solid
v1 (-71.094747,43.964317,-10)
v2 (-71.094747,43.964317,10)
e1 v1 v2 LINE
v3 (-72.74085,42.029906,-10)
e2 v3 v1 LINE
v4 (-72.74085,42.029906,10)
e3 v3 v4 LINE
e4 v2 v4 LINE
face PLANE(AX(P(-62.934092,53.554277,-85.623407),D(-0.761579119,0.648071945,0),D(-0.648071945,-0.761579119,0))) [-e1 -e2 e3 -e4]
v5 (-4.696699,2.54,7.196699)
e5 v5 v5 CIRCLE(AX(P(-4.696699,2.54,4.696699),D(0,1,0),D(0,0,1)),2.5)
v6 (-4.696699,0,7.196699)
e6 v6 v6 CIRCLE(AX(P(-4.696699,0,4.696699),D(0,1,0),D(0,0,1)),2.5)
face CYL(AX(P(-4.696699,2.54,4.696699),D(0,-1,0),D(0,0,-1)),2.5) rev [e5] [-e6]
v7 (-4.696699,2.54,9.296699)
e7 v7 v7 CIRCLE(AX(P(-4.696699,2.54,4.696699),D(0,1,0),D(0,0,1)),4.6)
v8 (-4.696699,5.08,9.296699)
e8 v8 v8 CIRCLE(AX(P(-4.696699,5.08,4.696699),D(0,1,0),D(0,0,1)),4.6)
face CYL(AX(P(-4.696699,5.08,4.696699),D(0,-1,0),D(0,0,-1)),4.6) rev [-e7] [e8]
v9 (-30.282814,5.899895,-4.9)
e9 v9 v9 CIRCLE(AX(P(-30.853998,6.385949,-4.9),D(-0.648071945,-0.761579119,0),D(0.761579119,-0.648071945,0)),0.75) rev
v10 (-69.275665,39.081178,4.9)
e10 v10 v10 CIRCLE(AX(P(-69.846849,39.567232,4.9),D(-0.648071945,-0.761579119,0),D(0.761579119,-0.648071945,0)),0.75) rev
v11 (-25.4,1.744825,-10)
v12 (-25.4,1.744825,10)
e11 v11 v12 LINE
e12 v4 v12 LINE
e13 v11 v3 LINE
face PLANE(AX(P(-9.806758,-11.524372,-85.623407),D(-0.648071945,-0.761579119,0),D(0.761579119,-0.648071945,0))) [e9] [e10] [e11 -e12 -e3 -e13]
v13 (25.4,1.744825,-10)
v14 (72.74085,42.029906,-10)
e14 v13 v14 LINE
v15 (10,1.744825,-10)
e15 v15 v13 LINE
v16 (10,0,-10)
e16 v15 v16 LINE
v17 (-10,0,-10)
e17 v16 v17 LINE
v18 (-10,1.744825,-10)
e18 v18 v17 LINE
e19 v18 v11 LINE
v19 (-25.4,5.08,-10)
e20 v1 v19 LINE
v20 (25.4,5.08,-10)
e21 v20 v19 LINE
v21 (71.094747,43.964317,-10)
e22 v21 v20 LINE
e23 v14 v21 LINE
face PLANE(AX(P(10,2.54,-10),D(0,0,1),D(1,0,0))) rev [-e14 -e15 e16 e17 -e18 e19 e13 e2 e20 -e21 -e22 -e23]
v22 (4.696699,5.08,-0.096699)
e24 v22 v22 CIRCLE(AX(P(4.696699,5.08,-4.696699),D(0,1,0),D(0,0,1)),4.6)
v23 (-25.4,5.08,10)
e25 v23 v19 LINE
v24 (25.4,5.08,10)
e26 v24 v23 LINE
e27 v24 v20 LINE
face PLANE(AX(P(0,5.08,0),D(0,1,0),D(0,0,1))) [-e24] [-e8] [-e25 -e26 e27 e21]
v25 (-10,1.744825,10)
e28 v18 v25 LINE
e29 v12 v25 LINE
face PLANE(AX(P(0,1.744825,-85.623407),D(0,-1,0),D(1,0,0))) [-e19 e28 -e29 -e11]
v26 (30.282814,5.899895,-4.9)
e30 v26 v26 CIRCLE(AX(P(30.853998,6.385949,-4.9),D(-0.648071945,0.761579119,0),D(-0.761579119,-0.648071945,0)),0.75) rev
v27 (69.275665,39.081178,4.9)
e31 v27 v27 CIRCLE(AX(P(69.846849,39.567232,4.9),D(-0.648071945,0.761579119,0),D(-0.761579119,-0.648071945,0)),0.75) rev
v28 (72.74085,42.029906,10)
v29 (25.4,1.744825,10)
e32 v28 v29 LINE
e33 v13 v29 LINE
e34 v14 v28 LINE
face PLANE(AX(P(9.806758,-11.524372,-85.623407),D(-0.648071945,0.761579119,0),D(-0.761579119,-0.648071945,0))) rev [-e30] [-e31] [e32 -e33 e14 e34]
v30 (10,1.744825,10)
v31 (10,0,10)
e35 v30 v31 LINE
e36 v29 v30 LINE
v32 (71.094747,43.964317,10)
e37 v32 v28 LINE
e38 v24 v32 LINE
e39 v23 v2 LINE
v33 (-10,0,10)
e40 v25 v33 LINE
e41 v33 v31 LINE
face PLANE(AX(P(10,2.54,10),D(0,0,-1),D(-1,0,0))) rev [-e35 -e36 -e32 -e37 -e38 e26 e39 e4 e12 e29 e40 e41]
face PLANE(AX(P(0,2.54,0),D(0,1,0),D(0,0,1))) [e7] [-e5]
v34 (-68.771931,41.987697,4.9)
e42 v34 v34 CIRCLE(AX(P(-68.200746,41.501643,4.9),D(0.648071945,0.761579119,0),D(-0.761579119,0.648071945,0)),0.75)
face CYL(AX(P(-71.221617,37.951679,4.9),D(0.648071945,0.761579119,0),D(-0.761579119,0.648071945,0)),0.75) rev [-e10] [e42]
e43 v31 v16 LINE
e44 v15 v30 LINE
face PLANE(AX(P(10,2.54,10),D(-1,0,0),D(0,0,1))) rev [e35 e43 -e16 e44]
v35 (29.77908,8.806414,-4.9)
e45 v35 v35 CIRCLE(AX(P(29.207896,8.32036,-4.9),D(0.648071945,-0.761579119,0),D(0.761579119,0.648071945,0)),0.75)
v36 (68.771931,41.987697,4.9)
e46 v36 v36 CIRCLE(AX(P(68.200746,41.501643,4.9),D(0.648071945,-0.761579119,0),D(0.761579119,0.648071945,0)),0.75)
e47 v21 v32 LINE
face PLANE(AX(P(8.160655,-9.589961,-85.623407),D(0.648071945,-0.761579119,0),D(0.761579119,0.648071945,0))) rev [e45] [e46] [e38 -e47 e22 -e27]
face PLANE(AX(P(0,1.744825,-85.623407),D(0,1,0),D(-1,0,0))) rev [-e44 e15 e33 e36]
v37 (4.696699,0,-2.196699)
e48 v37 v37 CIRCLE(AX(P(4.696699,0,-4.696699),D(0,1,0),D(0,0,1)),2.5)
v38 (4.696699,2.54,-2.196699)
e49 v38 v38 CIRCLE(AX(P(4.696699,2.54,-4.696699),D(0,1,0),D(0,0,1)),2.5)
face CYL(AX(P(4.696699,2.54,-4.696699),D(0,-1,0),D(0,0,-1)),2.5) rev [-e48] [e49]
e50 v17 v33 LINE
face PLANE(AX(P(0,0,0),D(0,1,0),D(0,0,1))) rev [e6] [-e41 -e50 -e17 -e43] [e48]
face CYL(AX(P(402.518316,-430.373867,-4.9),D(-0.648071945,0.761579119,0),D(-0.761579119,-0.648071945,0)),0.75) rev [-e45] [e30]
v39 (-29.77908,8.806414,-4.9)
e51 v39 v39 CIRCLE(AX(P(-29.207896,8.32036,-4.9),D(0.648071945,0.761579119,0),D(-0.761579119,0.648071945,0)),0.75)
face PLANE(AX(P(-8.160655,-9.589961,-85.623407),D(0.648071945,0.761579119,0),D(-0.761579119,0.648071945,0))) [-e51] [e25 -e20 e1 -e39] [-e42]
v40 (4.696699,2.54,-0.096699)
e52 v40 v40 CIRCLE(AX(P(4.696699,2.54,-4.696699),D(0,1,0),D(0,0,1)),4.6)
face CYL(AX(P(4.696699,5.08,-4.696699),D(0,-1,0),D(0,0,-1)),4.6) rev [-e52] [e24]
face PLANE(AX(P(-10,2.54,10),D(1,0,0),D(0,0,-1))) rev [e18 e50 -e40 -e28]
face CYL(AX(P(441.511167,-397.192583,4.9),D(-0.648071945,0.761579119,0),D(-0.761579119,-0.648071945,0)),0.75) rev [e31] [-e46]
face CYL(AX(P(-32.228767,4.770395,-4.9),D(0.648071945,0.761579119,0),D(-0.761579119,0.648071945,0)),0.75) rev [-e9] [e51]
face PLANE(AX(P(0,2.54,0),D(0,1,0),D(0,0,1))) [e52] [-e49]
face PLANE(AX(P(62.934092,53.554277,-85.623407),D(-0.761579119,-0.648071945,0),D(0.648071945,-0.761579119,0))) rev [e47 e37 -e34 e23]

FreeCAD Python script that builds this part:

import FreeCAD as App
import Part
import Sketcher
from FreeCAD import Vector

doc = App.newDocument("Part")
body = doc.addObject("PartDesign::Body", "Body")

# Sketch on XZ plane
sketch1 = body.newObject("Sketcher::SketchObject", "Sketch")
sketch1.AttachmentSupport = (doc.getObject("XZ_Plane"), [""])
sketch1.MapMode = "FlatFace"
sketch1.addGeometry(Part.LineSegment(Vector(-10, -10, 0), Vector(-10, 10, 0)), False)
sketch1.addGeometry(Part.LineSegment(Vector(-10, 10, 0), Vector(10, 10, 0)), False)
sketch1.addGeometry(Part.LineSegment(Vector(10, 10, 0), Vector(10, -10, 0)), False)
sketch1.addGeometry(Part.LineSegment(Vector(10, -10, 0), Vector(-10, -10, 0)), False)
sketch1.addGeometry(Part.Circle(Vector(-4.7, 4.7, 0), Vector(0, 0, 1), 2.5), False)
sketch1.addGeometry(Part.Circle(Vector(4.7, -4.7, 0), Vector(0, 0, 1), 2.5), False)
sketch1.addConstraint(Sketcher.Constraint("Coincident", 0, 2, 1, 1))
sketch1.addConstraint(Sketcher.Constraint("Coincident", 1, 2, 2, 1))
sketch1.addConstraint(Sketcher.Constraint("Coincident", 2, 2, 3, 1))
sketch1.addConstraint(Sketcher.Constraint("Coincident", 3, 2, 0, 1))
sketch1.addConstraint(Sketcher.Constraint("Vertical", 0))
sketch1.addConstraint(Sketcher.Constraint("Horizontal", 1))
sketch1.addConstraint(Sketcher.Constraint("Vertical", 2))
sketch1.addConstraint(Sketcher.Constraint("Horizontal", 3))
sketch1.addConstraint(Sketcher.Constraint("Equal", 4, 5))
sketch1.addConstraint(Sketcher.Constraint("Symmetric", 4, 3, 5, 3, -1, 1))
sketch1.addConstraint(Sketcher.Constraint("Symmetric", 0, 2, 2, 2, -1, 1))
sketch1.addConstraint(Sketcher.Constraint("Equal", 3, 0))
sketch1.addConstraint(Sketcher.Constraint("Diameter", 4, 5.0))
sketch1.addConstraint(Sketcher.Constraint("DistanceX", 1, 1, 1, 2, 20.0))
sketch1.addConstraint(Sketcher.Constraint("DistanceX", 4, 3, -1, 1, 4.696699))
sketch1.addConstraint(Sketcher.Constraint("DistanceY", -1, 1, 4, 3, 4.696699))
pad1 = body.newObject("PartDesign::Pad", "Pad")
pad1.Profile = sketch1
pad1.Length = 2.54
pad1.Reversed = True

# Sketch on XZ plane
sketch2 = body.newObject("Sketcher::SketchObject", "Sketch001")
sketch2.AttachmentSupport = (doc.getObject("XZ_Plane"), [""])
sketch2.MapMode = "FlatFace"
sketch2.AttachmentOffset = App.Placement(Vector(0, 0, -2.54), App.Rotation())
sketch2.addGeometry(Part.LineSegment(Vector(-25.4, -10, 0), Vector(-25.4, 10, 0)), False)
sketch2.addGeometry(Part.LineSegment(Vector(-25.4, 10, 0), Vector(25.4, 10, 0)), False)
sketch2.addGeometry(Part.LineSegment(Vector(25.4, 10, 0), Vector(25.4, -10, 0)), False)
sketch2.addGeometry(Part.LineSegment(Vector(25.4, -10, 0), Vector(-25.4, -10, 0)), False)
sketch2.addGeometry(Part.Circle(Vector(4.7, -4.7, 0), Vector(0, 0, 1), 4.6), False)
sketch2.addGeometry(Part.Circle(Vector(-4.7, 4.7, 0), Vector(0, 0, 1), 4.6), False)
sketch2.addConstraint(Sketcher.Constraint("Coincident", 0, 2, 1, 1))
sketch2.addConstraint(Sketcher.Constraint("Coincident", 1, 2, 2, 1))
sketch2.addConstraint(Sketcher.Constraint("Coincident", 2, 2, 3, 1))
sketch2.addConstraint(Sketcher.Constraint("Coincident", 3, 2, 0, 1))
sketch2.addConstraint(Sketcher.Constraint("Vertical", 0))
sketch2.addConstraint(Sketcher.Constraint("Horizontal", 1))
sketch2.addConstraint(Sketcher.Constraint("Vertical", 2))
sketch2.addConstraint(Sketcher.Constraint("Horizontal", 3))
sketch2.addConstraint(Sketcher.Constraint("Equal", 4, 5))
sketch2.addConstraint(Sketcher.Constraint("Symmetric", 4, 3, 5, 3, -1, 1))
sketch2.addConstraint(Sketcher.Constraint("Symmetric", 0, 2, 2, 2, -1, 1))
sketch2.addConstraint(Sketcher.Constraint("Diameter", 4, 9.2))
sketch2.addConstraint(Sketcher.Constraint("DistanceY", 0, 1, 0, 2, 20.0))
sketch2.addConstraint(Sketcher.Constraint("DistanceX", 1, 1, 1, 2, 50.8))
sketch2.addConstraint(Sketcher.Constraint("DistanceX", -1, 1, 4, 3, 4.696699))
sketch2.addConstraint(Sketcher.Constraint("DistanceY", 4, 3, -1, 1, 4.696699))
pad2 = body.newObject("PartDesign::Pad", "Pad001")
pad2.Profile = sketch2
pad2.Length = 2.54
pad2.Reversed = True

# Sketch on XY plane
sketch3 = body.newObject("Sketcher::SketchObject", "Sketch002")
sketch3.AttachmentSupport = (doc.getObject("XY_Plane"), [""])
sketch3.MapMode = "FlatFace"
sketch3.AttachmentOffset = App.Placement(Vector(0, 0, 10), App.Rotation())
sketch3.addGeometry(Part.LineSegment(Vector(-25.4, 2.5, 0), Vector(-25.4, 5.1, 0)), False)
sketch3.addGeometry(Part.LineSegment(Vector(-25.4, 5.1, 0), Vector(-71.1, 44, 0)), False)
sketch3.addGeometry(Part.LineSegment(Vector(-71.1, 44, 0), Vector(-72.7, 42, 0)), False)
sketch3.addGeometry(Part.LineSegment(Vector(-72.7, 42, 0), Vector(-25.4, 1.7, 0)), False)
sketch3.addGeometry(Part.LineSegment(Vector(-25.4, 1.7, 0), Vector(-10, 1.7, 0)), False)
sketch3.addGeometry(Part.LineSegment(Vector(-10, 1.7, 0), Vector(-10, 2.5, 0)), False)
sketch3.addGeometry(Part.LineSegment(Vector(-10, 2.5, 0), Vector(-25.4, 2.5, 0)), False)
sketch3.addGeometry(Part.LineSegment(Vector(71.1, 44, 0), Vector(25.4, 5.1, 0)), False)
sketch3.addGeometry(Part.LineSegment(Vector(25.4, 5.1, 0), Vector(25.4, 2.5, 0)), False)
sketch3.addGeometry(Part.LineSegment(Vector(25.4, 2.5, 0), Vector(10, 2.5, 0)), False)
sketch3.addGeometry(Part.LineSegment(Vector(10, 2.5, 0), Vector(10, 1.7, 0)), False)
sketch3.addGeometry(Part.LineSegment(Vector(10, 1.7, 0), Vector(25.4, 1.7, 0)), False)
sketch3.addGeometry(Part.LineSegment(Vector(25.4, 1.7, 0), Vector(72.7, 42, 0)), False)
sketch3.addGeometry(Part.LineSegment(Vector(72.7, 42, 0), Vector(71.1, 44, 0)), False)
sketch3.addConstraint(Sketcher.Constraint("Coincident", 0, 2, 1, 1))
sketch3.addConstraint(Sketcher.Constraint("Coincident", 1, 2, 2, 1))
sketch3.addConstraint(Sketcher.Constraint("Coincident", 2, 2, 3, 1))
sketch3.addConstraint(Sketcher.Constraint("Coincident", 3, 2, 4, 1))
sketch3.addConstraint(Sketcher.Constraint("Coincident", 4, 2, 5, 1))
sketch3.addConstraint(Sketcher.Constraint("Coincident", 5, 2, 6, 1))
sketch3.addConstraint(Sketcher.Constraint("Coincident", 6, 2, 0, 1))
sketch3.addConstraint(Sketcher.Constraint("Coincident", 7, 2, 8, 1))
sketch3.addConstraint(Sketcher.Constraint("Coincident", 8, 2, 9, 1))
sketch3.addConstraint(Sketcher.Constraint("Coincident", 9, 2, 10, 1))
sketch3.addConstraint(Sketcher.Constraint("Coincident", 10, 2, 11, 1))
sketch3.addConstraint(Sketcher.Constraint("Coincident", 11, 2, 12, 1))
sketch3.addConstraint(Sketcher.Constraint("Coincident", 12, 2, 13, 1))
sketch3.addConstraint(Sketcher.Constraint("Coincident", 13, 2, 7, 1))
sketch3.addConstraint(Sketcher.Constraint("Vertical", 0))
sketch3.addConstraint(Sketcher.Constraint("Horizontal", 4))
sketch3.addConstraint(Sketcher.Constraint("Vertical", 5))
sketch3.addConstraint(Sketcher.Constraint("Horizontal", 6))
sketch3.addConstraint(Sketcher.Constraint("Vertical", 8))
sketch3.addConstraint(Sketcher.Constraint("Horizontal", 9))
sketch3.addConstraint(Sketcher.Constraint("Vertical", 10))
sketch3.addConstraint(Sketcher.Constraint("Horizontal", 11))
sketch3.addConstraint(Sketcher.Constraint("Symmetric", 0, 2, 7, 2, -2))
sketch3.addConstraint(Sketcher.Constraint("Symmetric", 5, 2, 9, 2, -2))
sketch3.addConstraint(Sketcher.Constraint("Symmetric", 3, 2, 11, 2, -2))
sketch3.addConstraint(Sketcher.Constraint("Symmetric", 2, 2, 12, 2, -2))
sketch3.addConstraint(Sketcher.Constraint("Symmetric", 1, 2, 13, 2, -2))
sketch3.addConstraint(Sketcher.Constraint("Perpendicular", 1, 2))
sketch3.addConstraint(Sketcher.Constraint("Perpendicular", 2, 3))
sketch3.addConstraint(Sketcher.Constraint("Vertical", 0, 2, 3, 2))
sketch3.addConstraint(Sketcher.Constraint("Distance", 1, 60.0))
sketch3.addConstraint(Sketcher.Constraint("DistanceX", 4, 1, 4, 2, 15.4))
sketch3.addConstraint(Sketcher.Constraint("DistanceX", 4, 2, -1, 1, 10.0))
sketch3.addConstraint(Sketcher.Constraint("DistanceY", 0, 1, 0, 2, 2.54))
sketch3.addConstraint(Sketcher.Constraint("Distance", 2, 2.54))
sketch3.addConstraint(Sketcher.Constraint("DistanceY", -1, 1, 0, 2, 5.08))
sketch3.addConstraint(Sketcher.Constraint("DistanceY", 5, 1, 5, 2, 0.795175))
pad3 = body.newObject("PartDesign::Pad", "Pad002")
pad3.Profile = sketch3
pad3.Length = 20
pad3.Reversed = True

# Sketch on an angled plane
sketch4 = body.newObject("Sketcher::SketchObject", "Sketch003")
sketch4.Placement = App.Placement(Vector(-8.160655, -9.589961, 0), App.Rotation(Vector(0.761579119, -0.648071945, 0), Vector(0, 0, -1), Vector(0.648071945, 0.761579119, 0), "ZXY"))
sketch4.addGeometry(Part.Circle(Vector(-27.6, 4.9, 0), Vector(0, 0, 1), 0.8), False)
sketch4.addGeometry(Part.Circle(Vector(-78.8, -4.9, 0), Vector(0, 0, 1), 0.8), False)
sketch4.addConstraint(Sketcher.Constraint("Equal", 0, 1))
sketch4.addConstraint(Sketcher.Constraint("Diameter", 0, 1.5))
sketch4.addConstraint(Sketcher.Constraint("DistanceY", -1, 1, 0, 3, 4.9))
sketch4.addConstraint(Sketcher.Constraint("DistanceY", 1, 3, -1, 1, 4.9))
sketch4.addConstraint(Sketcher.Constraint("DistanceX", 1, 3, 0, 3, 51.2))
sketch4.addConstraint(Sketcher.Constraint("DistanceX", 0, 3, -1, 1, 27.636315))
pocket1 = body.newObject("PartDesign::Pocket", "Pocket")
pocket1.Profile = sketch4
pocket1.Length = 257.103477
doc.recompute()

mirrored = body.newObject("PartDesign::Mirrored", "Mirrored")
mirrored.Originals = [pocket1]
mirrored.MirrorPlane = (doc.getObject("YZ_Plane"), [""])
body.Tip = mirrored

doc.recompute()
